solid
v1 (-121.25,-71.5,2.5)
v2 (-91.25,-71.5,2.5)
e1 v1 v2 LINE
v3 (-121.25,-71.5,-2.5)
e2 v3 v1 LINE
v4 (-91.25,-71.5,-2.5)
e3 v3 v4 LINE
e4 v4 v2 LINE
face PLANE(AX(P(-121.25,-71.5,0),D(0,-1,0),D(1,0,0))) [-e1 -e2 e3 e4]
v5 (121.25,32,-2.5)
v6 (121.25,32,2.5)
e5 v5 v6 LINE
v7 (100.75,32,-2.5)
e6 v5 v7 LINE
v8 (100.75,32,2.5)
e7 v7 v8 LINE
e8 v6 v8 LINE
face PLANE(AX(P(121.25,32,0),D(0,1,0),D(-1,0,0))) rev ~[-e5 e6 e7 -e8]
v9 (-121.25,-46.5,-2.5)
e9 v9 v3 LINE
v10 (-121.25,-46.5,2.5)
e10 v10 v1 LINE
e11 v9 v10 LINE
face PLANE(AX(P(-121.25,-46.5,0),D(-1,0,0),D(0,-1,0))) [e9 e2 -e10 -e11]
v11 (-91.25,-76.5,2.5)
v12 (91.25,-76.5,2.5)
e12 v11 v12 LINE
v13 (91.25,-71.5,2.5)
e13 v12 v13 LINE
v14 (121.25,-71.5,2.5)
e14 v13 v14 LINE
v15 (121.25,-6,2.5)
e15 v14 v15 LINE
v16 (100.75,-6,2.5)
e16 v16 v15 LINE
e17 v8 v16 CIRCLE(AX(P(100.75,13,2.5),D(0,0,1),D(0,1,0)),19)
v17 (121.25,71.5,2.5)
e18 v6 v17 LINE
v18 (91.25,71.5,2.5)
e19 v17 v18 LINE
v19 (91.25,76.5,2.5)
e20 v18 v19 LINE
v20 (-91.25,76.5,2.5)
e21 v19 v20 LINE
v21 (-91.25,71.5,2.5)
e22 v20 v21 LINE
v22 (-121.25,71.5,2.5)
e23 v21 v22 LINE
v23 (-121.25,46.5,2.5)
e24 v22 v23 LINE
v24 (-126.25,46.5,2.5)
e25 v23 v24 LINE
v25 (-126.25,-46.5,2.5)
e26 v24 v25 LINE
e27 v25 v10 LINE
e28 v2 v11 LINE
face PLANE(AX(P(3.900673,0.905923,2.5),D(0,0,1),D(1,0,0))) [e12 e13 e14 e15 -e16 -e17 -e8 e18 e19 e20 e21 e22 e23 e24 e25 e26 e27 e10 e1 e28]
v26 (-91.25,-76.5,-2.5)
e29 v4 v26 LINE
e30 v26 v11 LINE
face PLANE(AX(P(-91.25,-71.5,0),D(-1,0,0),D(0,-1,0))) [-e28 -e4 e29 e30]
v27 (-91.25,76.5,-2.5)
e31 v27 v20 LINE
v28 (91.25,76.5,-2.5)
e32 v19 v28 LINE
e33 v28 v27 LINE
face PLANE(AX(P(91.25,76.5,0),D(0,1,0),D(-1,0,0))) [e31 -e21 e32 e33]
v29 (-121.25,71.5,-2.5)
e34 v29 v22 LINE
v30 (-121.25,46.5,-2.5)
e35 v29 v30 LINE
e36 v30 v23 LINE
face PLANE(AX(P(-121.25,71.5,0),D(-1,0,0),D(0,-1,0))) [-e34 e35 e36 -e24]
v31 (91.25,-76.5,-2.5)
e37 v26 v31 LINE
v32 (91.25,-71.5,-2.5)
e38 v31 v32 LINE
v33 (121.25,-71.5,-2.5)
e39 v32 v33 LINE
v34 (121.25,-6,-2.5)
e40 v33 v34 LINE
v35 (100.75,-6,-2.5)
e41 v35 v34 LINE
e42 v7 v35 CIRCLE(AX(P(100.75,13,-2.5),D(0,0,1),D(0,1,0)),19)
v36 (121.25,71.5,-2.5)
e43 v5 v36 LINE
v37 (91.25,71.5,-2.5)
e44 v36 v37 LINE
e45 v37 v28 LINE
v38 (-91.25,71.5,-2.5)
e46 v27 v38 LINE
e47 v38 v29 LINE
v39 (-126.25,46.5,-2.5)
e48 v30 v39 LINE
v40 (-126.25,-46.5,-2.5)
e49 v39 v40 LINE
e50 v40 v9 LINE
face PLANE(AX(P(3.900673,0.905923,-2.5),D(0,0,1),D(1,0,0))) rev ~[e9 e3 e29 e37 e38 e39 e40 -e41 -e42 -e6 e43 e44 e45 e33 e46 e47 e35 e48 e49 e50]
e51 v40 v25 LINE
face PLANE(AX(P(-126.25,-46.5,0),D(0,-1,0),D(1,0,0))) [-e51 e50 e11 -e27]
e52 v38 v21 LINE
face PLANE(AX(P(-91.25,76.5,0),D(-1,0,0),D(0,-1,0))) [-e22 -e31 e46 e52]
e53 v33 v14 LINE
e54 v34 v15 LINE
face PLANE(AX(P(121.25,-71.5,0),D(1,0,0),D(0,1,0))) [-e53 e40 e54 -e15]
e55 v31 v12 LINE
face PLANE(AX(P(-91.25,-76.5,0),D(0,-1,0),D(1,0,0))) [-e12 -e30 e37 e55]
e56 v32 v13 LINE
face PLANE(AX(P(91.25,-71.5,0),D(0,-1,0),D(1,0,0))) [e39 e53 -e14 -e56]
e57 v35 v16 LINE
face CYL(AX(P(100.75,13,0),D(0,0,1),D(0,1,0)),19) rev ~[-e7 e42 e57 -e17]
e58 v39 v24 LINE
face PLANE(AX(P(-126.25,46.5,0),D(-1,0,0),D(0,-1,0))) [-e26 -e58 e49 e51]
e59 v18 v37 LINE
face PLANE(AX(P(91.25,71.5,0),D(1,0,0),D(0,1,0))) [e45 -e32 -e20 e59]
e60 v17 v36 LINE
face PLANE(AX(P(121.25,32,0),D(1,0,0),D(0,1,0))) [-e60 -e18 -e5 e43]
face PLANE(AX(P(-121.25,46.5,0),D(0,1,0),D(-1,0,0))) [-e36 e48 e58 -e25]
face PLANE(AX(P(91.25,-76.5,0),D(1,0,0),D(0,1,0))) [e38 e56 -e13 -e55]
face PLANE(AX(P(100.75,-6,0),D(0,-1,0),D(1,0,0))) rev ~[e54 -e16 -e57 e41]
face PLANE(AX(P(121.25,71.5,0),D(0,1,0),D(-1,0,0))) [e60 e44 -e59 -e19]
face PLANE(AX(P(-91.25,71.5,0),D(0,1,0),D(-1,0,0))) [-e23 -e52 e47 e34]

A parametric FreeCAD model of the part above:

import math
import FreeCAD as App
import Part
import Sketcher

V = App.Vector

doc = App.newDocument("Part")
body = doc.addObject("PartDesign::Body", "Body")

# Sketch on XY plane
sketch1 = body.newObject("Sketcher::SketchObject", "Sketch")
sketch1.AttachmentSupport = (doc.getObject("XY_Plane"), [""])
sketch1.MapMode = "FlatFace"
sketch1.addGeometry(Part.LineSegment(V(91, 76, 0), V(-91, 76, 0)), False)
sketch1.addGeometry(Part.LineSegment(V(-91, 76, 0), V(-91, 72, 0)), False)
sketch1.addGeometry(Part.LineSegment(V(-91, 72, 0), V(-121, 72, 0)), False)
sketch1.addGeometry(Part.LineSegment(V(-121, 72, 0), V(-121, 46, 0)), False)
sketch1.addGeometry(Part.LineSegment(V(-121, 46, 0), V(-126, 46, 0)), False)
sketch1.addGeometry(Part.LineSegment(V(-126, 46, 0), V(-126, -46, 0)), False)
sketch1.addGeometry(Part.LineSegment(V(-126, -46, 0), V(-121, -46, 0)), False)
sketch1.addGeometry(Part.LineSegment(V(-121, -46, 0), V(-121, -72, 0)), False)
sketch1.addGeometry(Part.LineSegment(V(-121, -72, 0), V(-91, -72, 0)), False)
sketch1.addGeometry(Part.LineSegment(V(-91, -72, 0), V(-91, -76, 0)), False)
sketch1.addGeometry(Part.LineSegment(V(-91, -76, 0), V(91, -76, 0)), False)
sketch1.addGeometry(Part.LineSegment(V(91, -76, 0), V(91, -72, 0)), False)
sketch1.addGeometry(Part.LineSegment(V(91, -72, 0), V(121, -72, 0)), False)
sketch1.addGeometry(Part.LineSegment(V(121, -72, 0), V(121, -6, 0)), False)
sketch1.addGeometry(Part.LineSegment(V(121, -6, 0), V(101, -6, 0)), False)
sketch1.addGeometry(Part.ArcOfCircle(Part.Circle(V(101, 13, 0), V(0, 0, 1), 19), math.radians(90), math.radians(270)), False)
sketch1.addGeometry(Part.LineSegment(V(101, 32, 0), V(121, 32, 0)), False)
sketch1.addGeometry(Part.LineSegment(V(121, 32, 0), V(121, 72, 0)), False)
sketch1.addGeometry(Part.LineSegment(V(121, 72, 0), V(91, 72, 0)), False)
sketch1.addGeometry(Part.LineSegment(V(91, 72, 0), V(91, 76, 0)), False)
sketch1.addConstraint(Sketcher.Constraint("Coincident", 0, 2, 1, 1))
sketch1.addConstraint(Sketcher.Constraint("Coincident", 1, 2, 2, 1))
sketch1.addConstraint(Sketcher.Constraint("Coincident", 2, 2, 3, 1))
sketch1.addConstraint(Sketcher.Constraint("Coincident", 3, 2, 4, 1))
sketch1.addConstraint(Sketcher.Constraint("Coincident", 4, 2, 5, 1))
sketch1.addConstraint(Sketcher.Constraint("Coincident", 5, 2, 6, 1))
sketch1.addConstraint(Sketcher.Constraint("Coincident", 6, 2, 7, 1))
sketch1.addConstraint(Sketcher.Constraint("Coincident", 7, 2, 8, 1))
sketch1.addConstraint(Sketcher.Constraint("Coincident", 8, 2, 9, 1))
sketch1.addConstraint(Sketcher.Constraint("Coincident", 9, 2, 10, 1))
sketch1.addConstraint(Sketcher.Constraint("Coincident", 10, 2, 11, 1))
sketch1.addConstraint(Sketcher.Constraint("Coincident", 11, 2, 12, 1))
sketch1.addConstraint(Sketcher.Constraint("Coincident", 12, 2, 13, 1))
sketch1.addConstraint(Sketcher.Constraint("Coincident", 13, 2, 14, 1))
sketch1.addConstraint(Sketcher.Constraint("Tangent", 14, 2, 15, 2))
sketch1.addConstraint(Sketcher.Constraint("Tangent", 15, 1, 16, 1))
sketch1.addConstraint(Sketcher.Constraint("Coincident", 16, 2, 17, 1))
sketch1.addConstraint(Sketcher.Constraint("Coincident", 17, 2, 18, 1))
sketch1.addConstraint(Sketcher.Constraint("Coincident", 18, 2, 19, 1))
sketch1.addConstraint(Sketcher.Constraint("Coincident", 19, 2, 0, 1))
sketch1.addConstraint(Sketcher.Constraint("Horizontal", 0))
sketch1.addConstraint(Sketcher.Constraint("Vertical", 1))
sketch1.addConstraint(Sketcher.Constraint("Horizontal", 2))
sketch1.addConstraint(Sketcher.Constraint("Vertical", 3))
sketch1.addConstraint(Sketcher.Constraint("Horizontal", 4))
sketch1.addConstraint(Sketcher.Constraint("Vertical", 5))
sketch1.addConstraint(Sketcher.Constraint("Horizontal", 6))
sketch1.addConstraint(Sketcher.Constraint("Vertical", 7))
sketch1.addConstraint(Sketcher.Constraint("Horizontal", 8))
sketch1.addConstraint(Sketcher.Constraint("Vertical", 9))
sketch1.addConstraint(Sketcher.Constraint("Horizontal", 10))
sketch1.addConstraint(Sketcher.Constraint("Vertical", 11))
sketch1.addConstraint(Sketcher.Constraint("Horizontal", 12))
sketch1.addConstraint(Sketcher.Constraint("Vertical", 13))
sketch1.addConstraint(Sketcher.Constraint("Horizontal", 14))
sketch1.addConstraint(Sketcher.Constraint("Horizontal", 16))
sketch1.addConstraint(Sketcher.Constraint("Vertical", 17))
sketch1.addConstraint(Sketcher.Constraint("Horizontal", 18))
sketch1.addConstraint(Sketcher.Constraint("Vertical", 19))
sketch1.addConstraint(Sketcher.Constraint("Symmetric", 0, 2, 10, 2, -1, 1))
sketch1.addConstraint(Sketcher.Constraint("Symmetric", 2, 2, 12, 2, -1, 1))
sketch1.addConstraint(Sketcher.Constraint("Symmetric", 7, 2, 17, 2, -1, 1))
sketch1.addConstraint(Sketcher.Constraint("Symmetric", 8, 2, 11, 2, -2))
sketch1.addConstraint(Sketcher.Constraint("Symmetric", 3, 2, 6, 2, -1))
sketch1.addConstraint(Sketcher.Constraint("Vertical", 11, 2, 18, 2))
sketch1.addConstraint(Sketcher.Constraint("Equal", 6, 1))
sketch1.addConstraint(Sketcher.Constraint("Radius", 15, 19.0))
sketch1.addConstraint(Sketcher.Constraint("DistanceX", 2, 2, 2, 1, 30.0))
sketch1.addConstraint(Sketcher.Constraint("DistanceX", 4, 2, 4, 1, 5.0))
sketch1.addConstraint(Sketcher.Constraint("DistanceY", 3, 2, 3, 1, 25.0))
sketch1.addConstraint(Sketcher.Constraint("DistanceY", 5, 2, 5, 1, 93.0))
sketch1.addConstraint(Sketcher.Constraint("DistanceX", 0, 2, 0, 1, 182.5))
sketch1.addConstraint(Sketcher.Constraint("DistanceX", 14, 2, 14, 1, 20.5))
sketch1.addConstraint(Sketcher.Constraint("DistanceY", 13, 1, 13, 2, 65.5))
pad1 = body.newObject("PartDesign::Pad", "Pad")
pad1.Profile = sketch1
pad1.Length = 5
pad1.Midplane = True

doc.recompute()
